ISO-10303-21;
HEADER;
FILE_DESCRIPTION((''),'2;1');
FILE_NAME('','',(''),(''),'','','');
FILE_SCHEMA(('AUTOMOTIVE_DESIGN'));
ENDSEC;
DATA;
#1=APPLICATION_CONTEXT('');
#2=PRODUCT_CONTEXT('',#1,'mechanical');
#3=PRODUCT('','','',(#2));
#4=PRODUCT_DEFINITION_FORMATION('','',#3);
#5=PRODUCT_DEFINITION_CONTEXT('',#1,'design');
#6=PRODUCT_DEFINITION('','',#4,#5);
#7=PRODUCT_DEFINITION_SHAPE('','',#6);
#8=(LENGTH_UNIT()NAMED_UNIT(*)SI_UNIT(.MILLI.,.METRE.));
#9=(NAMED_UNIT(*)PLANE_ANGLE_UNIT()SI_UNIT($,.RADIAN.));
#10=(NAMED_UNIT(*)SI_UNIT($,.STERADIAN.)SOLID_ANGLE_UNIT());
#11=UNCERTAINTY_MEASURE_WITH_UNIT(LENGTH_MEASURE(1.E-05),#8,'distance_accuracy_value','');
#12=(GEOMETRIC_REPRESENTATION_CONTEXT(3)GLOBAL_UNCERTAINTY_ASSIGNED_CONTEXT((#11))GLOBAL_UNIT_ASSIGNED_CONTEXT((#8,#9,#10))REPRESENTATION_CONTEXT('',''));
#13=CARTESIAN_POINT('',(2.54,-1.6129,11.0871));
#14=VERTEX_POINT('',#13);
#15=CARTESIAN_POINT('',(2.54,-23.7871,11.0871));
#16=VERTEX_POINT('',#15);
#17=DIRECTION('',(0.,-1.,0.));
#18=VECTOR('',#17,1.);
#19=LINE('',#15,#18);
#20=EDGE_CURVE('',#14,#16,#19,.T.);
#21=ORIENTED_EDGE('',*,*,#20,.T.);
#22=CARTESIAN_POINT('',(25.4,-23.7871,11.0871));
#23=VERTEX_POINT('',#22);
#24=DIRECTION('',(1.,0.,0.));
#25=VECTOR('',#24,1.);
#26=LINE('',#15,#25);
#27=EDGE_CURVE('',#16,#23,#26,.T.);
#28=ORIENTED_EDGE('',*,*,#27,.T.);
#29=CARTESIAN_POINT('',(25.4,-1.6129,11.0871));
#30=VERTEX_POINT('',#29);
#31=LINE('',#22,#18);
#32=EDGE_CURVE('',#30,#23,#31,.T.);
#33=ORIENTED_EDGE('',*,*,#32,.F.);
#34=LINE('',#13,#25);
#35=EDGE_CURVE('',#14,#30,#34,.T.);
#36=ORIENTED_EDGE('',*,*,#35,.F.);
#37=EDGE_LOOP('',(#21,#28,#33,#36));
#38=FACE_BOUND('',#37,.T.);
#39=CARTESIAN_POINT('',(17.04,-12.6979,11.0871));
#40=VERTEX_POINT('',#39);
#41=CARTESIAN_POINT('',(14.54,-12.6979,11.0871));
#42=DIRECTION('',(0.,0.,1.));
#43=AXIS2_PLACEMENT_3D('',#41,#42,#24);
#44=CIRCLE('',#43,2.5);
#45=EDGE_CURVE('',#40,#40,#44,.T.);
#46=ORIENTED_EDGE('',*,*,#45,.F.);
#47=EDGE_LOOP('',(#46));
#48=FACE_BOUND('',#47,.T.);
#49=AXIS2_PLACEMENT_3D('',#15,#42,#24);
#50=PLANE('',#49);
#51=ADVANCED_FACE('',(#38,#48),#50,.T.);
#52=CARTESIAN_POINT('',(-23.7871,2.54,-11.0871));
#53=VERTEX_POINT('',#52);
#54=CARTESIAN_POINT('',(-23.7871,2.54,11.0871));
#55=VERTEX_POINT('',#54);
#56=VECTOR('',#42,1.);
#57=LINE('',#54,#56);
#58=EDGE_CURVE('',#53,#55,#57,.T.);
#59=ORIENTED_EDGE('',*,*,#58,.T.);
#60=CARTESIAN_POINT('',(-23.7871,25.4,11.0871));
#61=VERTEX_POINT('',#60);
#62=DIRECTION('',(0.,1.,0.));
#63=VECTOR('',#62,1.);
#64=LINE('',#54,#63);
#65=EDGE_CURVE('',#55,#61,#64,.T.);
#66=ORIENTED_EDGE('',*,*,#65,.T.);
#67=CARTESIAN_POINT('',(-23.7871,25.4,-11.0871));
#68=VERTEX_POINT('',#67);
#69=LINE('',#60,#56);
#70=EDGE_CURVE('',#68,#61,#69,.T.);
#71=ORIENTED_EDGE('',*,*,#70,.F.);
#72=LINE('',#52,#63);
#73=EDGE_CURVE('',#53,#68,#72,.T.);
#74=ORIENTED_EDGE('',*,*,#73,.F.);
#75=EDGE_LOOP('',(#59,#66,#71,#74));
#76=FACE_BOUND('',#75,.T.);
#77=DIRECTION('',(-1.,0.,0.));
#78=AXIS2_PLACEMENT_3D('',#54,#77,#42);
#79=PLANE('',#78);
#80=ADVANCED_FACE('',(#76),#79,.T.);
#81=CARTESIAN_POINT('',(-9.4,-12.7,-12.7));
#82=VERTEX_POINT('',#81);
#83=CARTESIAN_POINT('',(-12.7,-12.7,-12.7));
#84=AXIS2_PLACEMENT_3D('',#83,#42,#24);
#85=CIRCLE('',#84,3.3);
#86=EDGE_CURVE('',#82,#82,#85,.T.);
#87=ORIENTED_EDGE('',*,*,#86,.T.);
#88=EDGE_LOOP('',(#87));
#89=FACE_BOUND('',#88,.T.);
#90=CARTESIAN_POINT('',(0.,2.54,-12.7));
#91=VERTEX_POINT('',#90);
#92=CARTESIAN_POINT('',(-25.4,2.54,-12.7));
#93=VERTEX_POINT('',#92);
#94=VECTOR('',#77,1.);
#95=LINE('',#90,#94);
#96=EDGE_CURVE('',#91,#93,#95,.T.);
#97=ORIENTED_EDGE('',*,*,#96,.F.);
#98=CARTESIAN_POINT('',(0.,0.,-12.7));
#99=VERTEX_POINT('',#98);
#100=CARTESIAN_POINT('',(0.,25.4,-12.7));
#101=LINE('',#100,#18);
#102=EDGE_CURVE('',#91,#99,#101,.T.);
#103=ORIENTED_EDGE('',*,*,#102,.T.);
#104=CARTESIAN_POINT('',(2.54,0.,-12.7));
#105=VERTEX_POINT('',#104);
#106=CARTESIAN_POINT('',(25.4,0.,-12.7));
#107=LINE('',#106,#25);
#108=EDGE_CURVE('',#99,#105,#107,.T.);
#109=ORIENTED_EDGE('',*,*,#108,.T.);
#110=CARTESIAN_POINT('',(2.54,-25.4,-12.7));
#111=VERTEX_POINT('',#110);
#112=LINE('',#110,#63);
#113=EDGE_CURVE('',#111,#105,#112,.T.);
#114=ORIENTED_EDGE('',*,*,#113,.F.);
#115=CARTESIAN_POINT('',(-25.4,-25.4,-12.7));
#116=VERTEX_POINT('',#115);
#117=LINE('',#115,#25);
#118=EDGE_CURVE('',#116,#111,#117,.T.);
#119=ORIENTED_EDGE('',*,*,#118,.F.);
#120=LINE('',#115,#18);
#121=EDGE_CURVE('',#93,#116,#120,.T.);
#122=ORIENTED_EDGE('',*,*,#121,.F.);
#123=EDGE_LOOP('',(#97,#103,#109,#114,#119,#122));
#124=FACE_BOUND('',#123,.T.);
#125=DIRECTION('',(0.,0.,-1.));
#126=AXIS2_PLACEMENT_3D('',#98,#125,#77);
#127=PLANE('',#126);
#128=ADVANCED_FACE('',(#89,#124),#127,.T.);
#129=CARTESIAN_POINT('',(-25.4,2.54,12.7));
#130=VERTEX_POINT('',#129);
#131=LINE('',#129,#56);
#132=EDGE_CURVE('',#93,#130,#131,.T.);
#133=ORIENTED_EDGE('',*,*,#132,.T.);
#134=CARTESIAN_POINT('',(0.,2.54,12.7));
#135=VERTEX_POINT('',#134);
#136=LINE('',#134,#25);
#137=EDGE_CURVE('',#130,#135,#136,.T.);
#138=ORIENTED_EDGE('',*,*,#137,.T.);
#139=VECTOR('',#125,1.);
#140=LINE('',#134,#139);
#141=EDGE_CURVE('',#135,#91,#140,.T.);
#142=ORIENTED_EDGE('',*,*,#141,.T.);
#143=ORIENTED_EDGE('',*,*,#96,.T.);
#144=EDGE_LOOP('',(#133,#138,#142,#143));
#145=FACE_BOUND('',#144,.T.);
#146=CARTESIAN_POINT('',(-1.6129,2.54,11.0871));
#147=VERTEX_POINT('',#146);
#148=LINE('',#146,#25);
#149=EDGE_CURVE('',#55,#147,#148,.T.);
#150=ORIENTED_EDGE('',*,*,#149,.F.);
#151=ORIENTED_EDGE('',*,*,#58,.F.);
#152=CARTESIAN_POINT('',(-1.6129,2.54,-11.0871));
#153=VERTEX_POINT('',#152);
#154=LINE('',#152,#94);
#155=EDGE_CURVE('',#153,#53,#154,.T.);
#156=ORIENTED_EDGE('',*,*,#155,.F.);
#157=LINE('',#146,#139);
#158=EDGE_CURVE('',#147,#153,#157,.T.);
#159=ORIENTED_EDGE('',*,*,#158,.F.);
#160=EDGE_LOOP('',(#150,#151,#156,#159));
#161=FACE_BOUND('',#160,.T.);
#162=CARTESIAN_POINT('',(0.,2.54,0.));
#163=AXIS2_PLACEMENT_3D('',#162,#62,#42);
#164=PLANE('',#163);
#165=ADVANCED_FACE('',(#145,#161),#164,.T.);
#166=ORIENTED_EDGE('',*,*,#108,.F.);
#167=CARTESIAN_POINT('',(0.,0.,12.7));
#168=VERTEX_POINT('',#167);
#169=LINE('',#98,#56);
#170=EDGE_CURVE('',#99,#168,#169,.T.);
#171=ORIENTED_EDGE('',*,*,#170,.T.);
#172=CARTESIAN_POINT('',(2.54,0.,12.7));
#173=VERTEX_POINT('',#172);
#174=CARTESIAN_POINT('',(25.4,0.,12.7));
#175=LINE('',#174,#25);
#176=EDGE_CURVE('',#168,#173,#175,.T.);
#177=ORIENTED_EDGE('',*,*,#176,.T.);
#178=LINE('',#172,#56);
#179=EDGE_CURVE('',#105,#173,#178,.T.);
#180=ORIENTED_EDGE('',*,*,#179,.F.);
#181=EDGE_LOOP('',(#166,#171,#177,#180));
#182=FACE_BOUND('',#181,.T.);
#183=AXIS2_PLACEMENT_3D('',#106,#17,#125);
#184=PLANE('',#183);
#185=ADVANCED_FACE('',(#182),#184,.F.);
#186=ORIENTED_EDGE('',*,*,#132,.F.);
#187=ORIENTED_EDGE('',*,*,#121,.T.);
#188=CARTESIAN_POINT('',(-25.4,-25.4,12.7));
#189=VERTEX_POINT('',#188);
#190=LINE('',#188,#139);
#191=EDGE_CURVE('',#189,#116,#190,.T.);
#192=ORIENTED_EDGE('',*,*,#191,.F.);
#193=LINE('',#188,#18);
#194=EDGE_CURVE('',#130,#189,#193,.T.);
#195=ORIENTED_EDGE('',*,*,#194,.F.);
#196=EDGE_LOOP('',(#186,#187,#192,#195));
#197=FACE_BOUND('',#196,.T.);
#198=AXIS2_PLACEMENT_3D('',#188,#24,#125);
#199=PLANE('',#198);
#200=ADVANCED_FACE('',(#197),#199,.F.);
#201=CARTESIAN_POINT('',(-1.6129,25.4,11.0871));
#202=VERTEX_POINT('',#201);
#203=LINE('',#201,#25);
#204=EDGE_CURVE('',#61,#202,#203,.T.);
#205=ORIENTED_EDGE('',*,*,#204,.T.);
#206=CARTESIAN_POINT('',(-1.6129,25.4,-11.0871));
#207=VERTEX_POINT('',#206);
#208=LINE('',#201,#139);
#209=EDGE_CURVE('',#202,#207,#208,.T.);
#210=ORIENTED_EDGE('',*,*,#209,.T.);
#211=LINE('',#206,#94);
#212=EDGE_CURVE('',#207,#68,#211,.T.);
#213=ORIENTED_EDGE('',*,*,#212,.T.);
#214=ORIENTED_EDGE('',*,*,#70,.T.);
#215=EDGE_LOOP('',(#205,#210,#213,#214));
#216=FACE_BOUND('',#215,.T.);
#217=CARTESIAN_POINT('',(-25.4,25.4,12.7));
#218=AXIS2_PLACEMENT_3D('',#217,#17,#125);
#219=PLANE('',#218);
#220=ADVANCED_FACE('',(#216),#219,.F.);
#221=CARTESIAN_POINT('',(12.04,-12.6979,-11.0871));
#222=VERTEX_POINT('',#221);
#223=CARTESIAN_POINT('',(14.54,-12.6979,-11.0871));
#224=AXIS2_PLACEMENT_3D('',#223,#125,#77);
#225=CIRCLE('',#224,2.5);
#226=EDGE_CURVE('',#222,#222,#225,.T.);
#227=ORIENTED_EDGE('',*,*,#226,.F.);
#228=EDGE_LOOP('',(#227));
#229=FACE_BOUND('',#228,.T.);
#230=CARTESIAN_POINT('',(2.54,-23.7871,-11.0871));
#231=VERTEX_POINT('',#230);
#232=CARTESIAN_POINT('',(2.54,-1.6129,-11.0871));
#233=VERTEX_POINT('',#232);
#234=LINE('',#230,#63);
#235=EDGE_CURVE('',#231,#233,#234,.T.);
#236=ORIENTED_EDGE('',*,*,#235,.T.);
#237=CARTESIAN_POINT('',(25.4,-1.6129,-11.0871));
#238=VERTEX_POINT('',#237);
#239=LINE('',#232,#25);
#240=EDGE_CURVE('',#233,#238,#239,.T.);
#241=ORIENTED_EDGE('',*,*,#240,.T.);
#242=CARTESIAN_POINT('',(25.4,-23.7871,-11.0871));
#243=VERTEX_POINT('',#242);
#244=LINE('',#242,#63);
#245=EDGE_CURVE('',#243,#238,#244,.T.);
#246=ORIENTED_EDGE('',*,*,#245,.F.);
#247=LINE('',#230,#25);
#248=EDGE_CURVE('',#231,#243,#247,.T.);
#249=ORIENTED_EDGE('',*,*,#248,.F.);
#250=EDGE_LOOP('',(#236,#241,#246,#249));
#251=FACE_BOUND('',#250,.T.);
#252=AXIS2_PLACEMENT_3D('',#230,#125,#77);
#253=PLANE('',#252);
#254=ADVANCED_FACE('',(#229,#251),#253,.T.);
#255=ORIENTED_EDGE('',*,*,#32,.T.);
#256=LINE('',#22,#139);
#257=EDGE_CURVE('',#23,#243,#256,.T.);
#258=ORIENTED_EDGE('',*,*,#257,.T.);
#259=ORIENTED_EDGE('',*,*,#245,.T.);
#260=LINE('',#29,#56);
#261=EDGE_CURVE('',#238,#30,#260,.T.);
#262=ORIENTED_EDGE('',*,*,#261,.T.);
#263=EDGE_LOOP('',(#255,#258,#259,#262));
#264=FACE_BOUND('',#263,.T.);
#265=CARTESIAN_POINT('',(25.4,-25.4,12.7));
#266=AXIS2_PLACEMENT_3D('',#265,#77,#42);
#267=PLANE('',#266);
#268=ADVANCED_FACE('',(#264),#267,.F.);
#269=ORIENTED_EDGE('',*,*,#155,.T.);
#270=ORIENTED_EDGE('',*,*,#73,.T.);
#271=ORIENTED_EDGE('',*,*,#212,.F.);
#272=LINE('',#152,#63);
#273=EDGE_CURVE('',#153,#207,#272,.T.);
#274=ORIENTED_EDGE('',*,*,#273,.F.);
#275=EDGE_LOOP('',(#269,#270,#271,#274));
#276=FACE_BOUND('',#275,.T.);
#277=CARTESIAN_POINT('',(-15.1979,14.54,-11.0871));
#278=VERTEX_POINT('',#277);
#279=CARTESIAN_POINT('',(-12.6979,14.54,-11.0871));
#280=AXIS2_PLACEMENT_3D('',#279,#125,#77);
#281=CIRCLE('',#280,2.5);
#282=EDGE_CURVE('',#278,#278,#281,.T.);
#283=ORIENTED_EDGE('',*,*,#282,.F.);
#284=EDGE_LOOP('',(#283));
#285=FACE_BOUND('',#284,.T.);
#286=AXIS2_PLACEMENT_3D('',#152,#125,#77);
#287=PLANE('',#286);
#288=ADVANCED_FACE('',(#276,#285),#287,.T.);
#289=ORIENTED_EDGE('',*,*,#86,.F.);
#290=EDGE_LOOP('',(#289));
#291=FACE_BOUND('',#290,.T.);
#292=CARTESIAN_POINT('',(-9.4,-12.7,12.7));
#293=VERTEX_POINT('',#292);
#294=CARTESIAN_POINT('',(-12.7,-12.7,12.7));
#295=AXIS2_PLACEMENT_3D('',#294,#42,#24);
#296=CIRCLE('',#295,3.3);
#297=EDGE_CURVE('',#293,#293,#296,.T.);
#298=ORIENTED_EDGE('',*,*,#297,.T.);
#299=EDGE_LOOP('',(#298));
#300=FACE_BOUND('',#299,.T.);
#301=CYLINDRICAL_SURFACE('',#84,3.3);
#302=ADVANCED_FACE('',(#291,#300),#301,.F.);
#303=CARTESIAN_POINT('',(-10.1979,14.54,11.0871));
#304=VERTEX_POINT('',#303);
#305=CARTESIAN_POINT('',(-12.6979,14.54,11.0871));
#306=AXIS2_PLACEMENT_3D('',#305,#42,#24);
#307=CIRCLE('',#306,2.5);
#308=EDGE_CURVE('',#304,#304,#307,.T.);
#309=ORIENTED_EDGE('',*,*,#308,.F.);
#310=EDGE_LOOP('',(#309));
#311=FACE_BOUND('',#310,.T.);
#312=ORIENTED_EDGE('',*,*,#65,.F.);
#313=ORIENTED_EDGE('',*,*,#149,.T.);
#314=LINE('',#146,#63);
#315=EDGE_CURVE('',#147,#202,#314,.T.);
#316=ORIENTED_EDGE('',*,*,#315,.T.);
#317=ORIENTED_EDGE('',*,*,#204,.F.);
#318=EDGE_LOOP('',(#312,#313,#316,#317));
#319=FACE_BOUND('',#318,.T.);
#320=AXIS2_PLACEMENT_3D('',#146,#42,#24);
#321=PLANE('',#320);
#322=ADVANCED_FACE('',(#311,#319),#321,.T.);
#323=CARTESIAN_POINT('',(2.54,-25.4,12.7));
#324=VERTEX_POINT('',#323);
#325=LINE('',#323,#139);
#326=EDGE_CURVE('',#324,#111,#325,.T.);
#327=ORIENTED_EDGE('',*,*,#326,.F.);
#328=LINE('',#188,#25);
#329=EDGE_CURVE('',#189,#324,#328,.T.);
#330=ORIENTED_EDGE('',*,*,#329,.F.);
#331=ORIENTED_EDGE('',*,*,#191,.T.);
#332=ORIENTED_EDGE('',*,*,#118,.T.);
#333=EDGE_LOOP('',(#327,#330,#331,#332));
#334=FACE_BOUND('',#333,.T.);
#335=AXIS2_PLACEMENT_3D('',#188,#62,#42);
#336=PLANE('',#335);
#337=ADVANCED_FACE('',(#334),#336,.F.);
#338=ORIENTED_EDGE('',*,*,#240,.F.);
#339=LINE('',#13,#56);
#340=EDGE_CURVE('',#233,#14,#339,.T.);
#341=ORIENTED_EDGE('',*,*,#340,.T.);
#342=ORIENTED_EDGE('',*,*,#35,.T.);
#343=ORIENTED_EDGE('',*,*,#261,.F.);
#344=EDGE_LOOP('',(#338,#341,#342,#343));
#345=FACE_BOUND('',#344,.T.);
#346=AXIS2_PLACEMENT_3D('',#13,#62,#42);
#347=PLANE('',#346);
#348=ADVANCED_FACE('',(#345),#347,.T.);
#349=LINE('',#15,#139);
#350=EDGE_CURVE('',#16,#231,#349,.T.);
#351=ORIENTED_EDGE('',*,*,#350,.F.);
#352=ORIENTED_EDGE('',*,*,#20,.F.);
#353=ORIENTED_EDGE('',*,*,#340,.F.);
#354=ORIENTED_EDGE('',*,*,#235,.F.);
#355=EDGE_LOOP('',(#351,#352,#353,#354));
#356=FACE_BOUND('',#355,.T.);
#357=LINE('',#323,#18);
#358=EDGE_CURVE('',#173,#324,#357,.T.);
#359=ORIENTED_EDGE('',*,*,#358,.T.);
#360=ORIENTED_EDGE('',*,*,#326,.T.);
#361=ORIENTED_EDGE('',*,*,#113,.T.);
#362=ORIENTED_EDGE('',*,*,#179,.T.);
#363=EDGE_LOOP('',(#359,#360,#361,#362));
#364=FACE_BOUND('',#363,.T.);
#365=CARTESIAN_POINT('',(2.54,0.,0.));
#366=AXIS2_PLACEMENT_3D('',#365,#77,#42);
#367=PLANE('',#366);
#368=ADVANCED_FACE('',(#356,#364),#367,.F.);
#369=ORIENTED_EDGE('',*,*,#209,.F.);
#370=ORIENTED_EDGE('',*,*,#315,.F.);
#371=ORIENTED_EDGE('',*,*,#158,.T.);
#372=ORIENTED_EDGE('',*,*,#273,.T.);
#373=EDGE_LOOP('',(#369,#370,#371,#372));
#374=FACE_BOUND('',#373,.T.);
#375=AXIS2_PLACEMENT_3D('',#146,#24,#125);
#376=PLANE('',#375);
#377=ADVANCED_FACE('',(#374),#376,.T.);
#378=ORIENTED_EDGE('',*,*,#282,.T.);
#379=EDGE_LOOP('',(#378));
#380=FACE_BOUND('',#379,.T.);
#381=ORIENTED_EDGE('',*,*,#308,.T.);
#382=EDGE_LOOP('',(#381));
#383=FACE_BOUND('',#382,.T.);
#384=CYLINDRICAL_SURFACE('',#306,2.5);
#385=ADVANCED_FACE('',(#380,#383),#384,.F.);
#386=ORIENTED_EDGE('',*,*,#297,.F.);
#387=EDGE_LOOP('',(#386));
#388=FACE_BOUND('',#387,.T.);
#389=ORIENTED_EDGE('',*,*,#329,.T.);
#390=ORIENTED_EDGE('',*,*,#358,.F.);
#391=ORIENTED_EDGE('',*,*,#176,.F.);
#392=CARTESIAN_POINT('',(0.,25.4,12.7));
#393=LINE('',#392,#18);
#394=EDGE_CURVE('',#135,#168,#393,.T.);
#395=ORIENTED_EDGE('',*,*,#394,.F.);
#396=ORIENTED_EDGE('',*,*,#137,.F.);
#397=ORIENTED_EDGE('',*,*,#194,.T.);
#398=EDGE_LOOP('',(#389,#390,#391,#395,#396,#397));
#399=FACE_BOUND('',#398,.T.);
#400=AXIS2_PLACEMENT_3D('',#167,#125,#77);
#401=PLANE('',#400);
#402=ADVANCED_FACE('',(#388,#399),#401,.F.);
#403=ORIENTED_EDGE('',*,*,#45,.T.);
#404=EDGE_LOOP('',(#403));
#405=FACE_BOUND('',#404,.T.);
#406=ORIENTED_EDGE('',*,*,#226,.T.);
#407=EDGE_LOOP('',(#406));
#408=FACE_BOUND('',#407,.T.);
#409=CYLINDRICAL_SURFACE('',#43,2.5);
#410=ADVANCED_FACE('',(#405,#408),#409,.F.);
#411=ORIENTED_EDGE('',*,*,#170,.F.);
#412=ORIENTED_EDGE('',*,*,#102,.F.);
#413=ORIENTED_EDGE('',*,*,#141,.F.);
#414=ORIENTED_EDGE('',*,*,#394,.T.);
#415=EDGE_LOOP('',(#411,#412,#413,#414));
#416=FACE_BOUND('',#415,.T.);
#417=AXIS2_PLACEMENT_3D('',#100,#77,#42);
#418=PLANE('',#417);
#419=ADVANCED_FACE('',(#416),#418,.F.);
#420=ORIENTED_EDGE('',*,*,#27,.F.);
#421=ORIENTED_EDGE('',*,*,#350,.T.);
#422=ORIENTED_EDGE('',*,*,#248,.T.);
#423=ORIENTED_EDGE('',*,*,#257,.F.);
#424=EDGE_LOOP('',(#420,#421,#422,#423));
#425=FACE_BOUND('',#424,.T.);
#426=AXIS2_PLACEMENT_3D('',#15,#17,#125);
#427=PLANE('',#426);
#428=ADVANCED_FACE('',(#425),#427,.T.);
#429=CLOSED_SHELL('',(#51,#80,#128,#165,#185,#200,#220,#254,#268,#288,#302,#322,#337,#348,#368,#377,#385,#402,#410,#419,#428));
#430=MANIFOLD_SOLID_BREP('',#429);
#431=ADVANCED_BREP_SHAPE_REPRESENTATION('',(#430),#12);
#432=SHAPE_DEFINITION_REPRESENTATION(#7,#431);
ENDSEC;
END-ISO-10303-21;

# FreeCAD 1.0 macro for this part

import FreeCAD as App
import Part
import Sketcher
Q = App.Units.Quantity


def add_polygon(sketch, points):
    """Adds a closed chain of lines whose ends are joined by coincident constraints."""
    first, n = sketch.GeometryCount, len(points)
    for a, b in zip(points, points[1:] + points[:1]):
        sketch.addGeometry(Part.LineSegment(App.Vector(*a, 0), App.Vector(*b, 0)), False)
    for i in range(n):
        sketch.addConstraint(Sketcher.Constraint("Coincident", first + i, 2, first + (i + 1) % n, 1))

doc = App.newDocument("Part")
body = doc.addObject("PartDesign::Body", "Body")

# Sketch on XY plane
sketch1 = doc.addObject("Sketcher::SketchObject", "Sketch")
body.addObject(sketch1)
sketch1.AttachmentSupport = (doc.XY_Plane, [""])
sketch1.MapMode = "FlatFace"
add_polygon(sketch1, [(-25, 25), (-25, -25), (25, -25), (25, 25)])  # lines 0-3
sketch1.addConstraint([
    Sketcher.Constraint("Vertical", 0),
    Sketcher.Constraint("Horizontal", 1),
    Sketcher.Constraint("Vertical", 2),
    Sketcher.Constraint("Horizontal", 3),
    Sketcher.Constraint("Symmetric", 0, 2, 2, 2, -1, 1),
    Sketcher.Constraint("Equal", 3, 0),
    Sketcher.Constraint("DistanceX", 1, 1, 1, 2, Q("2 in")),
])
pad1 = doc.addObject("PartDesign::Pad", "Pad")
body.addObject(pad1)
pad1.Profile = sketch1
pad1.Length = Q("1 in")
pad1.Midplane = True

# Sketch on XY plane
sketch2 = doc.addObject("Sketcher::SketchObject", "Sketch001")
body.addObject(sketch2)
sketch2.AttachmentSupport = (doc.XY_Plane, [""])
sketch2.MapMode = "FlatFace"
sketch2.AttachmentOffset = App.Placement(App.Vector(0, 0, 0.5 * 25.4), App.Rotation())
add_polygon(sketch2, [(0, 25), (0, 0), (25, 0), (25, 25)])  # lines 0-3
sketch2.addConstraint([
    Sketcher.Constraint("Vertical", 0),
    Sketcher.Constraint("Horizontal", 1),
    Sketcher.Constraint("Vertical", 2),
    Sketcher.Constraint("Horizontal", 3),
    Sketcher.Constraint("Coincident", 0, 2, -1, 1),
    Sketcher.Constraint("Equal", 3, 0),
    Sketcher.Constraint("DistanceX", 1, 1, 1, 2, Q("1 in")),
])
pocket1 = doc.addObject("PartDesign::Pocket", "Pocket")
body.addObject(pocket1)
pocket1.Profile = sketch2
pocket1.Type = "ThroughAll"

# Sketch on YZ plane
sketch3 = doc.addObject("Sketcher::SketchObject", "Sketch002")
body.addObject(sketch3)
sketch3.AttachmentSupport = (doc.YZ_Plane, [""])
sketch3.MapMode = "FlatFace"
sketch3.AttachmentOffset = App.Placement(App.Vector(0, 0, 1 * 25.4), App.Rotation())
add_polygon(sketch3, [(0, 13), (-25, 13), (-25, -13), (0, -13)])  # lines 0-3
add_polygon(sketch3, [(-24, -11), (-24, 11), (-2, 11), (-2, -11)])  # lines 4-7
sketch3.addConstraint([
    Sketcher.Constraint("Horizontal", 0),
    Sketcher.Constraint("Vertical", 1),
    Sketcher.Constraint("Horizontal", 2),
    Sketcher.Constraint("Vertical", 3),
    Sketcher.Constraint("Vertical", 4),
    Sketcher.Constraint("Horizontal", 5),
    Sketcher.Constraint("Vertical", 6),
    Sketcher.Constraint("Horizontal", 7),
    Sketcher.Constraint("Symmetric", 2, 2, 3, 2, -1, 1),
    Sketcher.Constraint("Equal", 2, 1),
    Sketcher.Constraint("Equal", 7, 4),
    Sketcher.Constraint("DistanceX", 0, 2, 0, 1, Q("1 in")),
    Sketcher.Constraint("DistanceX", 5, 1, 5, 2, Q("0.873 in")),
    Sketcher.Constraint("DistanceX", 4, 2, -1, 1, Q("0.9365 in")),
    Sketcher.Constraint("DistanceY", -1, 1, 4, 2, Q("0.4365 in")),
])
pocket2 = doc.addObject("PartDesign::Pocket", "Pocket001")
body.addObject(pocket2)
pocket2.Profile = sketch3
pocket2.Length = Q("0.9 in")

# Sketch on XZ plane
sketch4 = doc.addObject("Sketcher::SketchObject", "Sketch003")
body.addObject(sketch4)
sketch4.AttachmentSupport = (doc.XZ_Plane, [""])
sketch4.MapMode = "FlatFace"
sketch4.AttachmentOffset = App.Placement(App.Vector(0, 0, -1 * 25.4), App.Rotation())
add_polygon(sketch4, [(-25, -13), (-25, 13), (0, 13), (0, -13)])  # lines 0-3
add_polygon(sketch4, [(-2, 11), (-24, 11), (-24, -11), (-2, -11)])  # lines 4-7
sketch4.addConstraint([
    Sketcher.Constraint("Vertical", 0),
    Sketcher.Constraint("Horizontal", 1),
    Sketcher.Constraint("Vertical", 2),
    Sketcher.Constraint("Horizontal", 3),
    Sketcher.Constraint("Horizontal", 4),
    Sketcher.Constraint("Vertical", 5),
    Sketcher.Constraint("Horizontal", 6),
    Sketcher.Constraint("Vertical", 7),
    Sketcher.Constraint("Symmetric", 1, 2, 2, 2, -1, 1),
    Sketcher.Constraint("Equal", 3, 0),
    Sketcher.Constraint("Equal", 6, 5),
    Sketcher.Constraint("DistanceX", 1, 1, 1, 2, Q("1 in")),
    Sketcher.Constraint("DistanceX", 4, 2, 4, 1, Q("0.873 in")),
    Sketcher.Constraint("DistanceX", 4, 2, -1, 1, Q("0.9365 in")),
    Sketcher.Constraint("DistanceY", -1, 1, 4, 2, Q("0.4365 in")),
])
pocket3 = doc.addObject("PartDesign::Pocket", "Pocket002")
body.addObject(pocket3)
pocket3.Profile = sketch4
pocket3.Length = Q("0.9 in")
pocket3.Reversed = True

# Sketch on XY plane
sketch5 = doc.addObject("Sketcher::SketchObject", "Sketch004")
body.addObject(sketch5)
sketch5.AttachmentSupport = (doc.XY_Plane, [""])
sketch5.MapMode = "FlatFace"
sketch5.AttachmentOffset = App.Placement(App.Vector(0, 0, 0.5 * 25.4), App.Rotation())
sketch5.addGeometry(Part.Circle(App.Vector(-12.7, -12.7, 0), App.Vector(0, 0, 1), 3.3), False)
sketch5.addConstraint([
    Sketcher.Constraint("DistanceX", 0, 3, -1, 1, Q("0.5 in")),
    Sketcher.Constraint("DistanceY", 0, 3, -1, 1, Q("0.5 in")),
    Sketcher.Constraint("Diameter", 0, 6.6),
])
pocket4 = doc.addObject("PartDesign::Pocket", "Pocket003")
body.addObject(pocket4)
pocket4.Profile = sketch5
pocket4.Type = "ThroughAll"

# Sketch on XY plane
sketch6 = doc.addObject("Sketcher::SketchObject", "Sketch005")
body.addObject(sketch6)
sketch6.AttachmentSupport = (doc.XY_Plane, [""])
sketch6.MapMode = "FlatFace"
sketch6.AttachmentOffset = App.Placement(App.Vector(0, 0, 0.4365 * 25.4), App.Rotation())
sketch6.addGeometry([
    Part.Circle(App.Vector(14.5, -12.7, 0), App.Vector(0, 0, 1), 2.5),
    Part.Circle(App.Vector(-12.7, 14.5, 0), App.Vector(0, 0, 1), 2.5),
], False)
sketch6.addConstraint([
    Sketcher.Constraint("Equal", 0, 1),
    Sketcher.Constraint("Diameter", 0, 5.0),
    Sketcher.Constraint("DistanceX", -1, 1, 0, 3, 14.54),
    Sketcher.Constraint("DistanceY", 0, 3, -1, 1, 12.6979),
    Sketcher.Constraint("DistanceX", 1, 3, -1, 1, 12.6979),
    Sketcher.Constraint("DistanceY", -1, 1, 1, 3, 14.54),
])
doc.recompute()
hole = doc.addObject("PartDesign::Hole", "Hole")
body.addObject(hole)
hole.Profile = sketch6
hole.ThreadType = "None"
hole.Diameter = 5
hole.DepthType = "ThroughAll"

doc.recompute()
